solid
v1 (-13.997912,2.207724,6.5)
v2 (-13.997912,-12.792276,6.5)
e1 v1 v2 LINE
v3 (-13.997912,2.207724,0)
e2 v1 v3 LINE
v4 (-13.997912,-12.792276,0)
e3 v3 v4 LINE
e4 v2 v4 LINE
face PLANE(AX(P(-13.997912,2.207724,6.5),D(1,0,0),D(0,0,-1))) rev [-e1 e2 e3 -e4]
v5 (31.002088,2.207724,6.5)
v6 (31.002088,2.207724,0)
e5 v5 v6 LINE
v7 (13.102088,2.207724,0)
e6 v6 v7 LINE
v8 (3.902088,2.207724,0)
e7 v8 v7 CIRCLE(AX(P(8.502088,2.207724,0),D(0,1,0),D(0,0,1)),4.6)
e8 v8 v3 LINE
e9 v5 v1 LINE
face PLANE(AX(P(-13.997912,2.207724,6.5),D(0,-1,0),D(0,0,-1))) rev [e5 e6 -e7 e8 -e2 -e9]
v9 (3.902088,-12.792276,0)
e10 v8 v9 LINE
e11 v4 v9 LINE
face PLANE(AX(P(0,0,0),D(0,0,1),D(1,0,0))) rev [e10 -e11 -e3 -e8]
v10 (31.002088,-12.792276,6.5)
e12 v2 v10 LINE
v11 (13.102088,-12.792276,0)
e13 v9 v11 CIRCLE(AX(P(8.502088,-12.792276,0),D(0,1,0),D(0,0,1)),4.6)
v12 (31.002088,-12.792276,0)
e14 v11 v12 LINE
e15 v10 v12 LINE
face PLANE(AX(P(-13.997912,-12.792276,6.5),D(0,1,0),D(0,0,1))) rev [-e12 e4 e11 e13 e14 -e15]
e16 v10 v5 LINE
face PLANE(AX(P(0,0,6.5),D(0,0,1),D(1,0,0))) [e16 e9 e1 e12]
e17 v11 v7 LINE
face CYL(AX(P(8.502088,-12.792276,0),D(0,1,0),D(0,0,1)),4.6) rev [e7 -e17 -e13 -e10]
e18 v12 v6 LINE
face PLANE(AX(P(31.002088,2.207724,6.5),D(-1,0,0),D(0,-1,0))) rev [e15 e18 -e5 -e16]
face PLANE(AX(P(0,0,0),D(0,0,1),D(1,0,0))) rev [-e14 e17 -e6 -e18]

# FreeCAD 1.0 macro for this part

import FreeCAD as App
import Part
import Sketcher

V = App.Vector

doc = App.newDocument("Part")
body = doc.addObject("PartDesign::Body", "Body")

# Sketch on XY plane
sketch1 = body.newObject("Sketcher::SketchObject", "Sketch")
sketch1.AttachmentSupport = (doc.getObject("XY_Plane"), [""])
sketch1.MapMode = "FlatFace"
sketch1.addGeometry([
    Part.LineSegment(V(-13.997912, 2.207724, 0), V(-13.997912, -12.792276, 0)),
    Part.LineSegment(V(-13.997912, -12.792276, 0), V(31.002088, -12.792276, 0)),
    Part.LineSegment(V(31.002088, -12.792276, 0), V(31.002088, 2.207724, 0)),
    Part.LineSegment(V(31.002088, 2.207724, 0), V(-13.997912, 2.207724, 0)),
], False)
sketch1.addConstraint([
    Sketcher.Constraint("Coincident", 0, 2, 1, 1),
    Sketcher.Constraint("Coincident", 1, 2, 2, 1),
    Sketcher.Constraint("Coincident", 2, 2, 3, 1),
    Sketcher.Constraint("Coincident", 3, 2, 0, 1),
    Sketcher.Constraint("Vertical", 0),
    Sketcher.Constraint("Horizontal", 1),
    Sketcher.Constraint("Vertical", 2),
    Sketcher.Constraint("Horizontal", 3),
    Sketcher.Constraint("DistanceX", 1, 1, 1, 2, 45.0),
    Sketcher.Constraint("DistanceY", 0, 2, 0, 1, 15.0),
    Sketcher.Constraint("DistanceX", 0, 2, -1, 1, 13.997912),
    Sketcher.Constraint("DistanceY", 0, 2, -1, 1, 12.792276),
])
pad1 = body.newObject("PartDesign::Pad", "Pad")
pad1.Profile = sketch1
pad1.Length = 6.5

# Sketch on XZ plane
sketch2 = body.newObject("Sketcher::SketchObject", "Sketch001")
sketch2.AttachmentSupport = (doc.getObject("XZ_Plane"), [""])
sketch2.MapMode = "FlatFace"
sketch2.AttachmentOffset = App.Placement(V(0, 0, -2.207724), App.Rotation())
sketch2.addGeometry(Part.Circle(V(8.502088, 0, 0), V(0, 0, 1), 4.6), False)
sketch2.addConstraint([
    Sketcher.Constraint("PointOnObject", 0, 3, -1),
    Sketcher.Constraint("Diameter", 0, 9.2),
    Sketcher.Constraint("DistanceX", -1, 1, 0, 3, 8.502088),
])
pocket1 = body.newObject("PartDesign::Pocket", "Pocket")
pocket1.Profile = sketch2
pocket1.Type = "ThroughAll"
pocket1.Reversed = True

doc.recompute()
